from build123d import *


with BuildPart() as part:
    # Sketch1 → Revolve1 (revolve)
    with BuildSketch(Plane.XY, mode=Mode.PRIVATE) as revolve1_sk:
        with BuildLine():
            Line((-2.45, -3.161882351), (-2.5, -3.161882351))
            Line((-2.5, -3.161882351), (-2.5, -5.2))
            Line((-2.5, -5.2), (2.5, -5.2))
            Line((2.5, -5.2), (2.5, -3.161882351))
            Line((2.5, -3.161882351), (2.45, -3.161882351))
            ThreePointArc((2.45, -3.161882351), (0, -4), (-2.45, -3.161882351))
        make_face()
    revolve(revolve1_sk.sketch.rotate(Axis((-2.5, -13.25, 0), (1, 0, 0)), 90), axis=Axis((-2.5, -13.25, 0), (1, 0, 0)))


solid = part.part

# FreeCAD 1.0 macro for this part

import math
import FreeCAD as App
import Part
import Sketcher
Q = App.Units.Quantity

doc = App.newDocument("Part")
body = doc.addObject("PartDesign::Body", "Body")

sketch1 = doc.addObject("Sketcher::SketchObject", "Sketch")
body.addObject(sketch1)
sketch1.AttachmentSupport = (doc.XY_Plane, [""])
sketch1.MapMode = "FlatFace"
sketch1.addGeometry([
    Part.LineSegment(App.Vector(-2.45, -3.162, 0), App.Vector(-2.5, -3.162, 0)),
    Part.LineSegment(App.Vector(-2.5, -3.162, 0), App.Vector(-2.5, -5.2, 0)),
    Part.LineSegment(App.Vector(-2.5, -5.2, 0), App.Vector(2.5, -5.2, 0)),
    Part.LineSegment(App.Vector(2.5, -5.2, 0), App.Vector(2.5, -3.162, 0)),
    Part.LineSegment(App.Vector(2.5, -3.162, 0), App.Vector(2.45, -3.162, 0)),
    Part.ArcOfCircle(Part.Circle(App.Vector(0, 0, 0), App.Vector(0, 0, 1), 4), math.radians(-128), math.radians(-52)),
], False)
sketch1.addGeometry(Part.LineSegment(App.Vector(-2.5, -13.25, 0), App.Vector(2.5, -13.25, 0)), True)
sketch1.addConstraint([
    Sketcher.Constraint("Coincident", 0, 2, 1, 1),
    Sketcher.Constraint("Coincident", 1, 2, 2, 1),
    Sketcher.Constraint("Coincident", 2, 2, 3, 1),
    Sketcher.Constraint("Coincident", 3, 2, 4, 1),
    Sketcher.Constraint("Coincident", 4, 2, 5, 2),
    Sketcher.Constraint("Coincident", 5, 1, 0, 1),
    Sketcher.Constraint("Horizontal", 0),
    Sketcher.Constraint("Vertical", 1),
    Sketcher.Constraint("Horizontal", 2),
    Sketcher.Constraint("Vertical", 3),
    Sketcher.Constraint("Horizontal", 4),
    Sketcher.Constraint("Horizontal", 6),
    Sketcher.Constraint("Coincident", 5, 3, -1, 1),
    Sketcher.Constraint("Symmetric", 0, 2, 3, 2, -2),
    Sketcher.Constraint("Vertical", 1, 2, 6, 1),
    Sketcher.Constraint("Vertical", 3, 2, 6, 2),
    Sketcher.Constraint("Radius", 5, Q("4 mm")),
    Sketcher.Constraint("DistanceX", 2, 1, 2, 2, Q("5 mm")),
    Sketcher.Constraint("DistanceX", 0, 2, 0, 1, Q("0.05 mm")),
    Sketcher.Constraint("DistanceY", 1, 2, -1, 1, Q("5.2 mm")),
    Sketcher.Constraint("DistanceY", 6, 1, -1, 1, Q("13.25 mm")),
])
revolution = doc.addObject("PartDesign::Revolution", "Revolution")
body.addObject(revolution)
revolution.Profile = sketch1
revolution.ReferenceAxis = (sketch1, ["Axis0"])
revolution.Angle = 360

doc.recompute()
